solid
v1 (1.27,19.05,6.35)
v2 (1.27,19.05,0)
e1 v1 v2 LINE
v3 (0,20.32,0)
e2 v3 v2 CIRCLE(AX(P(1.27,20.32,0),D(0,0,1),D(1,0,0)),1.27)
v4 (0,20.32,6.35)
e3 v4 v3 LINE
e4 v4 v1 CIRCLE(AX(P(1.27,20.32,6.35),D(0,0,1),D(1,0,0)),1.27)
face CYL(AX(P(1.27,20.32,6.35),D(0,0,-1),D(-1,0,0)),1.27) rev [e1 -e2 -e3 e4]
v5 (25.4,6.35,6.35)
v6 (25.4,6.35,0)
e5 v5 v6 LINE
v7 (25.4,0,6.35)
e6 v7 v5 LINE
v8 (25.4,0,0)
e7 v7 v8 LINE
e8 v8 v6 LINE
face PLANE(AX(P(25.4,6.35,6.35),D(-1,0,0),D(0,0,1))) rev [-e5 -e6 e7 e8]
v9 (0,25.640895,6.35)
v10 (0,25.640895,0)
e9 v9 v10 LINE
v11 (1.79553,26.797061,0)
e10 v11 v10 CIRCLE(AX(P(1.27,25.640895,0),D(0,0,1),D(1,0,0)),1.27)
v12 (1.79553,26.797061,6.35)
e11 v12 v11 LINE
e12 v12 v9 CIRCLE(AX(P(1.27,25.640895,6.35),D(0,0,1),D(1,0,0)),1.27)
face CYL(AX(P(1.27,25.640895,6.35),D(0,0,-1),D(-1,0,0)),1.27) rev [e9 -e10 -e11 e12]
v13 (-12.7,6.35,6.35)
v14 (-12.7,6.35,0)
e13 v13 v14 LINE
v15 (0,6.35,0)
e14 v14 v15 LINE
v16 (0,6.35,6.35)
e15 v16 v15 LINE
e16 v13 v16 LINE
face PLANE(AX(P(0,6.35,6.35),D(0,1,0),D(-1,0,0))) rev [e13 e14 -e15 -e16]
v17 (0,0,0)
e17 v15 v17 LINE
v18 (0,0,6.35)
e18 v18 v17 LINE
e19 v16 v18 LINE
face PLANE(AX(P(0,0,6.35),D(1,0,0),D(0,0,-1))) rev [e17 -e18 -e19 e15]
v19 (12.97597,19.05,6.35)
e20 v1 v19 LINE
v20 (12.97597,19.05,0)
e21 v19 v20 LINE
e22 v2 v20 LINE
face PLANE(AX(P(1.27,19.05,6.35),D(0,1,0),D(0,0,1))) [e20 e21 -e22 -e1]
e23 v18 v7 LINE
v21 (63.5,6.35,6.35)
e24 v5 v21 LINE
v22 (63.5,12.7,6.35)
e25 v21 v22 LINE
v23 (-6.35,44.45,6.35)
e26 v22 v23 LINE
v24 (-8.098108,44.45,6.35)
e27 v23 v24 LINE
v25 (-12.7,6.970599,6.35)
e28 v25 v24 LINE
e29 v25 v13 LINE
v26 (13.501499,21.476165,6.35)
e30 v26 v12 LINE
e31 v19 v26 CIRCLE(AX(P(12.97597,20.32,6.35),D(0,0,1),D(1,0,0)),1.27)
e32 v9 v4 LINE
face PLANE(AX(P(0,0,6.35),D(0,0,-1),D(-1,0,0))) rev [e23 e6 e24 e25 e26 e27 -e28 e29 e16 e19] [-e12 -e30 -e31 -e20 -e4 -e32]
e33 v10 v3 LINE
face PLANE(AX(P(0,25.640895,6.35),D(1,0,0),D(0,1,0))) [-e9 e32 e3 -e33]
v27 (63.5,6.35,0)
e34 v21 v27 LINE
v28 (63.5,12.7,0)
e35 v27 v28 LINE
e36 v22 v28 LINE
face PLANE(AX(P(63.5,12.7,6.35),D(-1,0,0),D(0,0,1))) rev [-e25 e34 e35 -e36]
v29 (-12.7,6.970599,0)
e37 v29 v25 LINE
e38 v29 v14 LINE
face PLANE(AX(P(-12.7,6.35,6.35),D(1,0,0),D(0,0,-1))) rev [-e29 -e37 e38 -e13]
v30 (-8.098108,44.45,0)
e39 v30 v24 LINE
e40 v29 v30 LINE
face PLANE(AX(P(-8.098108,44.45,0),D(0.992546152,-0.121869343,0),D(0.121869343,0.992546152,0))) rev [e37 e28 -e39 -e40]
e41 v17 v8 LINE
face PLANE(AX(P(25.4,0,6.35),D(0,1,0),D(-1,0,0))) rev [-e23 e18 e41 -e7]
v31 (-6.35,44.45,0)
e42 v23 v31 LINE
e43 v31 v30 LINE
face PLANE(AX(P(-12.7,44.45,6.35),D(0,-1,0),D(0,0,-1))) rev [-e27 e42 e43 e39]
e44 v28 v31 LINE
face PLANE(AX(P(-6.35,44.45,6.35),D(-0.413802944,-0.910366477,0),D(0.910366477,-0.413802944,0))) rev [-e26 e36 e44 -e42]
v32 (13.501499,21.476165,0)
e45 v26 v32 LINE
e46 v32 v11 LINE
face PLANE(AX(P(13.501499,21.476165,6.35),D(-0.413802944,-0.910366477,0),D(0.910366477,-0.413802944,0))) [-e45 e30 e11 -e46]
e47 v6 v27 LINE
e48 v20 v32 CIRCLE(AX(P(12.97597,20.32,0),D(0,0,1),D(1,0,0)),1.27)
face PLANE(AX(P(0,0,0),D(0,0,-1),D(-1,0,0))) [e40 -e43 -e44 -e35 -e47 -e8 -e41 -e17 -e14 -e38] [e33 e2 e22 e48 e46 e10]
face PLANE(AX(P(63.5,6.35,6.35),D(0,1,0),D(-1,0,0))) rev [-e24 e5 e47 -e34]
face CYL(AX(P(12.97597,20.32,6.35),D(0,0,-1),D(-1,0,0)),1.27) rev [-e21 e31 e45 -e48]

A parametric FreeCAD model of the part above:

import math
import FreeCAD as App
import Part
import Sketcher
from FreeCAD import Vector
Q = App.Units.Quantity


def add_polygon(sketch, points):
    """Adds a closed chain of lines whose ends are joined by coincident constraints."""
    first, n = sketch.GeometryCount, len(points)
    for a, b in zip(points, points[1:] + points[:1]):
        sketch.addGeometry(Part.LineSegment(App.Vector(*a, 0), App.Vector(*b, 0)), False)
    for i in range(n):
        sketch.addConstraint(Sketcher.Constraint("Coincident", first + i, 2, first + (i + 1) % n, 1))

doc = App.newDocument("Part")
body = doc.addObject("PartDesign::Body", "Body")

sketch1 = body.newObject("Sketcher::SketchObject", "Sketch")
sketch1.AttachmentSupport = (doc.getObject("XY_Plane"), [""])
sketch1.MapMode = "FlatFace"
add_polygon(sketch1, [(0, 6.35), (0, 0), (25.4, 0), (25.4, 6.35), (63.5, 6.35), (63.5, 12.7), (-6.35, 44.45), (-12.7, 44.45), (-12.7, 6.35)])
sketch1.addGeometry(Part.ArcOfCircle(Part.Circle(Vector(1.27, 25.640895, 0), Vector(0, 0, 1), 1.27), math.radians(65.556045), math.radians(180)), False)
sketch1.addGeometry(Part.LineSegment(Vector(1.79553, 26.797061, 0), Vector(13.501499, 21.476165, 0)), False)
sketch1.addGeometry(Part.ArcOfCircle(Part.Circle(Vector(12.97597, 20.32, 0), Vector(0, 0, 1), 1.27), math.radians(-90), math.radians(65.556045)), False)
sketch1.addGeometry(Part.LineSegment(Vector(12.97597, 19.05, 0), Vector(1.27, 19.05, 0)), False)
sketch1.addGeometry(Part.ArcOfCircle(Part.Circle(Vector(1.27, 20.32, 0), Vector(0, 0, 1), 1.27), math.radians(180), math.radians(270)), False)
sketch1.addGeometry(Part.LineSegment(Vector(0, 20.32, 0), Vector(0, 25.640895, 0)), False)
sketch1.addConstraint(Sketcher.Constraint("Tangent", 9, 1, 10, 1))
sketch1.addConstraint(Sketcher.Constraint("Tangent", 10, 2, 11, 2))
sketch1.addConstraint(Sketcher.Constraint("Tangent", 11, 1, 12, 1))
sketch1.addConstraint(Sketcher.Constraint("Tangent", 12, 2, 13, 2))
sketch1.addConstraint(Sketcher.Constraint("Tangent", 13, 1, 14, 1))
sketch1.addConstraint(Sketcher.Constraint("Tangent", 14, 2, 9, 2))
sketch1.addConstraint(Sketcher.Constraint("Vertical", 0))
sketch1.addConstraint(Sketcher.Constraint("Horizontal", 1))
sketch1.addConstraint(Sketcher.Constraint("Vertical", 2))
sketch1.addConstraint(Sketcher.Constraint("Horizontal", 3))
sketch1.addConstraint(Sketcher.Constraint("Vertical", 4))
sketch1.addConstraint(Sketcher.Constraint("Horizontal", 6))
sketch1.addConstraint(Sketcher.Constraint("Vertical", 7))
sketch1.addConstraint(Sketcher.Constraint("Horizontal", 8))
sketch1.addConstraint(Sketcher.Constraint("Horizontal", 12))
sketch1.addConstraint(Sketcher.Constraint("Vertical", 14))
sketch1.addConstraint(Sketcher.Constraint("Coincident", 0, 2, -1, 1))
sketch1.addConstraint(Sketcher.Constraint("Equal", 9, 11))
sketch1.addConstraint(Sketcher.Constraint("Equal", 11, 13))
sketch1.addConstraint(Sketcher.Constraint("PointOnObject", 13, 1, -2))
sketch1.addConstraint(Sketcher.Constraint("Parallel", 5, 10))
sketch1.addConstraint(Sketcher.Constraint("Horizontal", 3, 2, 7, 2))
sketch1.addConstraint(Sketcher.Constraint("Equal", 6, 0))
sketch1.addConstraint(Sketcher.Constraint("Equal", 2, 4))
sketch1.addConstraint(Sketcher.Constraint("Equal", 3, 7))
sketch1.addConstraint(Sketcher.Constraint("DistanceX", 1, 1, 1, 2, Q("1 in")))
sketch1.addConstraint(Sketcher.Constraint("Radius", 9, Q("0.05 in")))
sketch1.addConstraint(Sketcher.Constraint("DistanceX", 3, 1, 3, 2, Q("1.5 in")))
sketch1.addConstraint(Sketcher.Constraint("DistanceX", 8, 1, 8, 2, Q("0.5 in")))
sketch1.addConstraint(Sketcher.Constraint("DistanceX", 6, 2, 6, 1, Q("0.25 in")))
sketch1.addConstraint(Sketcher.Constraint("DistanceY", -1, 1, 11, 3, Q("0.8 in")))
sketch1.addConstraint(Sketcher.Constraint("DistanceX", 12, 2, 12, 1, 11.70597))
pad1 = body.newObject("PartDesign::Pad", "Pad")
pad1.Profile = sketch1
pad1.Length = Q("0.25 in")

sketch2 = body.newObject("Sketcher::SketchObject", "Sketch001")
sketch2.AttachmentSupport = (doc.getObject("XY_Plane"), [""])
sketch2.MapMode = "FlatFace"
sketch2.AttachmentOffset = App.Placement(Vector(0, 0, 0.25 * 25.4), App.Rotation())
add_polygon(sketch2, [(-12.7, 6.970599), (-8.098108, 44.45), (-12.7, 44.45)])
sketch2.addConstraint(Sketcher.Constraint("Horizontal", 1))
sketch2.addConstraint(Sketcher.Constraint("Vertical", 2))
sketch2.addConstraint(Sketcher.Constraint("Angle", 0, Q("83 deg")))
sketch2.addConstraint(Sketcher.Constraint("DistanceX", 1, 2, -1, 1, Q("0.5 in")))
sketch2.addConstraint(Sketcher.Constraint("DistanceY", -1, 1, 0, 2, Q("1.75 in")))
sketch2.addConstraint(Sketcher.Constraint("DistanceY", 2, 2, 2, 1, 37.479401))
pocket1 = body.newObject("PartDesign::Pocket", "Pocket")
pocket1.Profile = sketch2
pocket1.Type = "ThroughAll"

doc.recompute()
